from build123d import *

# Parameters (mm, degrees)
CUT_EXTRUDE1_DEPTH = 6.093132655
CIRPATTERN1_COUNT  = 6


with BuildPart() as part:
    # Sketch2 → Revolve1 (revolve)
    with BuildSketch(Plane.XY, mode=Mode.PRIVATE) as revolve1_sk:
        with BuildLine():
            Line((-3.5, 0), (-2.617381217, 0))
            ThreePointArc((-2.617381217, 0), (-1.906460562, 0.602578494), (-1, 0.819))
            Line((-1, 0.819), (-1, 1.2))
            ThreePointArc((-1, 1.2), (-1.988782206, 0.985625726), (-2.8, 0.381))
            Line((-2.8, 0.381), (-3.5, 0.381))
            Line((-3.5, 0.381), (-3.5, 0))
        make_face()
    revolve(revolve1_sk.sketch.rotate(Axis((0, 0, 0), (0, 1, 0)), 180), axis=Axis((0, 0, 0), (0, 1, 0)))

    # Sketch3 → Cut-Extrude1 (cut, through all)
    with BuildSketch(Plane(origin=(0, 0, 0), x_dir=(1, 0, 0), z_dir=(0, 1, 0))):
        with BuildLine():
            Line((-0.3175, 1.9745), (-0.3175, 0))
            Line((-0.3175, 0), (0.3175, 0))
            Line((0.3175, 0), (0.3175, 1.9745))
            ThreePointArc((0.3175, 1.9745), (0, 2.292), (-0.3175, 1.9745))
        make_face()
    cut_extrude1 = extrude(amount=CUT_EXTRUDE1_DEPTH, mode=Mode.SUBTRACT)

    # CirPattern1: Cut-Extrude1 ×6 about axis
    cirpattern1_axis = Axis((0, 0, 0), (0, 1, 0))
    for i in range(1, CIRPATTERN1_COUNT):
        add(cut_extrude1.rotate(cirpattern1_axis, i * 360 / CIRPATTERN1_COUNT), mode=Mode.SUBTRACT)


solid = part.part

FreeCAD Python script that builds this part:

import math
import FreeCAD as App
import Part
import Sketcher

V = App.Vector
Q = App.Units.Quantity

doc = App.newDocument("Part")
body = doc.addObject("PartDesign::Body", "Body")

# Sketch on XY plane
sketch1 = body.newObject("Sketcher::SketchObject", "Sketch")
sketch1.AttachmentSupport = (doc.getObject("XY_Plane"), [""])
sketch1.MapMode = "FlatFace"
sketch1.addGeometry([
    Part.LineSegment(V(-3.5, 0, 0), V(-2.62, 0, 0)),  # 0
    Part.ArcOfCircle(Part.Circle(V(-1, -1.19, 0), V(0, 0, 1), 2.01), math.radians(90), math.radians(144)),  # 1
    Part.LineSegment(V(-1, 0.82, 0), V(-1, 1.2, 0)),  # 2
    Part.ArcOfCircle(Part.Circle(V(-1, -1.19, 0), V(0, 0, 1), 2.39), math.radians(90), math.radians(139)),  # 3
    Part.LineSegment(V(-2.8, 0.38, 0), V(-3.5, 0.38, 0)),  # 4
    Part.LineSegment(V(-3.5, 0.38, 0), V(-3.5, 0, 0)),  # 5
], False)
sketch1.addConstraint([
    Sketcher.Constraint("Coincident", 0, 2, 1, 2),
    Sketcher.Constraint("Coincident", 1, 1, 2, 1),
    Sketcher.Constraint("Coincident", 2, 2, 3, 1),
    Sketcher.Constraint("Coincident", 3, 2, 4, 1),
    Sketcher.Constraint("Coincident", 4, 2, 5, 1),
    Sketcher.Constraint("Coincident", 5, 2, 0, 1),
    Sketcher.Constraint("Horizontal", 0),
    Sketcher.Constraint("Vertical", 2),
    Sketcher.Constraint("Horizontal", 4),
    Sketcher.Constraint("Vertical", 5),
    Sketcher.Constraint("Coincident", 3, 3, 1, 3),
    Sketcher.Constraint("PointOnObject", 0, 2, -1),
    Sketcher.Constraint("Vertical", 3, 3, 1, 1),
    Sketcher.Constraint("Equal", 2, 5),
    Sketcher.Constraint("DistanceY", 2, 1, 2, 2, Q("0.015 in")),
    Sketcher.Constraint("Radius", 1, 2.006522),
    Sketcher.Constraint("DistanceX", 4, 2, 4, 1, 0.7),
    Sketcher.Constraint("DistanceX", 0, 1, 0, 2, 0.882619),
    Sketcher.Constraint("DistanceX", 1, 3, -1, 1, 1.0),
])
revolution = body.newObject("PartDesign::Revolution", "Revolution")
revolution.Profile = sketch1
revolution.ReferenceAxis = (sketch1, ["V_Axis"])
revolution.Angle = 360

# Sketch on XZ plane
sketch2 = body.newObject("Sketcher::SketchObject", "Sketch001")
sketch2.AttachmentSupport = (doc.getObject("XZ_Plane"), [""])
sketch2.MapMode = "FlatFace"
sketch2.addGeometry([
    Part.LineSegment(V(-0.32, -1.97, 0), V(-0.32, 0, 0)),
    Part.LineSegment(V(-0.32, 0, 0), V(0.32, 0, 0)),
    Part.LineSegment(V(0.32, 0, 0), V(0.32, -1.97, 0)),
    Part.ArcOfCircle(Part.Circle(V(0, -1.97, 0), V(0, 0, 1), 0.32), math.radians(180), math.radians(360)),
], False)
sketch2.addConstraint([
    Sketcher.Constraint("Coincident", 0, 2, 1, 1),
    Sketcher.Constraint("Coincident", 1, 2, 2, 1),
    Sketcher.Constraint("Tangent", 2, 2, 3, 2),
    Sketcher.Constraint("Tangent", 3, 1, 0, 1),
    Sketcher.Constraint("Vertical", 0),
    Sketcher.Constraint("Horizontal", 1),
    Sketcher.Constraint("Vertical", 2),
    Sketcher.Constraint("Symmetric", 0, 2, 1, 2, -1, 1),
    Sketcher.Constraint("Radius", 3, Q("0.0125 in")),
    Sketcher.Constraint("DistanceY", 0, 1, 0, 2, 1.9745),
])
pocket1 = body.newObject("PartDesign::Pocket", "Pocket")
pocket1.Profile = sketch2
pocket1.Type = "ThroughAll"
doc.recompute()

polarpattern = body.newObject("PartDesign::PolarPattern", "PolarPattern")
polarpattern.Originals = [pocket1]
polarpattern.Axis = (doc.getObject("Y_Axis"), [""])
polarpattern.Angle = 360
polarpattern.Occurrences = 6
body.Tip = polarpattern

doc.recompute()
